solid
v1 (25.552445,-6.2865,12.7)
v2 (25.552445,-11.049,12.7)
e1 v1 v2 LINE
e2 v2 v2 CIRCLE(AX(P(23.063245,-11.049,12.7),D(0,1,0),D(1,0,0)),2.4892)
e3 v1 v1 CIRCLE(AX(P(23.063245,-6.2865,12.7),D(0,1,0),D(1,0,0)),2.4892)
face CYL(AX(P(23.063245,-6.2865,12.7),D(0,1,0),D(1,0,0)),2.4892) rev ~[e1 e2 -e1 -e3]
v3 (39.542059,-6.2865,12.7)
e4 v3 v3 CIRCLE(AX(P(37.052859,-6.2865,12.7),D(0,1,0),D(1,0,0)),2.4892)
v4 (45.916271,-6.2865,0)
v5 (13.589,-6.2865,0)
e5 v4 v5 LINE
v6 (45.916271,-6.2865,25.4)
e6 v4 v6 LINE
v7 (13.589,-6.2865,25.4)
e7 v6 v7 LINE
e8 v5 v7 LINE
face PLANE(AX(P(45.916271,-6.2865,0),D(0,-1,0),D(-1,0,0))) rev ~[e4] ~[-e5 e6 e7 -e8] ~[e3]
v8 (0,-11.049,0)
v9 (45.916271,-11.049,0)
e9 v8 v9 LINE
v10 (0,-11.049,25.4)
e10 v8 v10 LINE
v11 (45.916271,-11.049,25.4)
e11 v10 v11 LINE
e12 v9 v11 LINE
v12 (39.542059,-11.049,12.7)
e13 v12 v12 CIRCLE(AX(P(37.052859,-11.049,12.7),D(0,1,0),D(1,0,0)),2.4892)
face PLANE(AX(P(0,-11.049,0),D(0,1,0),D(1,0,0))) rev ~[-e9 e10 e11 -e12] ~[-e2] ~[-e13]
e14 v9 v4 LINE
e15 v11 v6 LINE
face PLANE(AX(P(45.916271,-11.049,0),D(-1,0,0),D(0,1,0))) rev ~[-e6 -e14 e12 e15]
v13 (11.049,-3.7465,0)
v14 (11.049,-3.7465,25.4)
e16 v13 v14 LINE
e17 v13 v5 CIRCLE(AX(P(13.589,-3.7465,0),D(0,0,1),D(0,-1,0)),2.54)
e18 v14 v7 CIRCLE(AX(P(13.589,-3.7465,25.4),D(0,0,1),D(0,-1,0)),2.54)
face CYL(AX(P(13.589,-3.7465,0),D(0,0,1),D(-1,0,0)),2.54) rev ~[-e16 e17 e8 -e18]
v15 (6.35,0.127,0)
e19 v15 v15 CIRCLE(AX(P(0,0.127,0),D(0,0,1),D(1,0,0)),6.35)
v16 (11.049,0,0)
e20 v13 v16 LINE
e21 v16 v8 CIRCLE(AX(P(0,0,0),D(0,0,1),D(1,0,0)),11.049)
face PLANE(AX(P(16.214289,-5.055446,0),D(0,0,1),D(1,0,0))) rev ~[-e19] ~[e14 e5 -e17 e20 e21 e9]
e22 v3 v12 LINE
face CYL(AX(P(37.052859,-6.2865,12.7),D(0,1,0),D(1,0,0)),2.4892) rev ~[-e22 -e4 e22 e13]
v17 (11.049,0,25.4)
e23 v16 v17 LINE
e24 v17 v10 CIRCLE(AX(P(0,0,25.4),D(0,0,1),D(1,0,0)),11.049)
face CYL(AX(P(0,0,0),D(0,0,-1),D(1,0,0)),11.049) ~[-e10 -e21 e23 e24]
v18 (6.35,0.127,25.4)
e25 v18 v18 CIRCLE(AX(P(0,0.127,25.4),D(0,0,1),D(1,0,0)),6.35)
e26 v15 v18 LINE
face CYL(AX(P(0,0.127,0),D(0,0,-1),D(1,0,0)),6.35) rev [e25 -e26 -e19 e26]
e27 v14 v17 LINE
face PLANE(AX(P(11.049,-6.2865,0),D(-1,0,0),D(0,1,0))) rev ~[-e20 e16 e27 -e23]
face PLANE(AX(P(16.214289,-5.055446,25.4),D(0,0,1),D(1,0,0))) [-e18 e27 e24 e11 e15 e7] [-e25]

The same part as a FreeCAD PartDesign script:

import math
import FreeCAD as App
import Part
import Sketcher
Q = App.Units.Quantity


def edges_at(feature, points):
    """Names of the edges that pass closest to the given points."""
    edges = feature.Shape.Edges
    near = lambda p: min(range(len(edges)), key=lambda i: edges[i].distToShape(Part.Vertex(*p))[0])
    return sorted({f"Edge{near(p) + 1}" for p in points})

doc = App.newDocument("Part")
body = doc.addObject("PartDesign::Body", "Body")

# Sketch on XY plane
sketch1 = doc.addObject("Sketcher::SketchObject", "Sketch")
body.addObject(sketch1)
sketch1.AttachmentSupport = (doc.XY_Plane, [""])
sketch1.MapMode = "FlatFace"
sketch1.addGeometry(Part.LineSegment(App.Vector(11, -6.3, 0), App.Vector(11, 0, 0)), False)
sketch1.addGeometry(Part.ArcOfCircle(Part.Circle(App.Vector(0, 0, 0), App.Vector(0, 0, 1), 11), math.radians(0), math.radians(270)), False)
sketch1.addGeometry(Part.LineSegment(App.Vector(0, -11, 0), App.Vector(45.9, -11, 0)), False)
sketch1.addGeometry(Part.LineSegment(App.Vector(45.9, -11, 0), App.Vector(45.9, -6.3, 0)), False)
sketch1.addGeometry(Part.LineSegment(App.Vector(45.9, -6.3, 0), App.Vector(11, -6.3, 0)), False)
sketch1.addGeometry(Part.Circle(App.Vector(0, 0.1, 0), App.Vector(0, 0, 1), 6.3), False)
sketch1.addConstraint(Sketcher.Constraint("Tangent", 0, 2, 1, 1))
sketch1.addConstraint(Sketcher.Constraint("Tangent", 1, 2, 2, 1))
sketch1.addConstraint(Sketcher.Constraint("Coincident", 2, 2, 3, 1))
sketch1.addConstraint(Sketcher.Constraint("Coincident", 3, 2, 4, 1))
sketch1.addConstraint(Sketcher.Constraint("Coincident", 4, 2, 0, 1))
sketch1.addConstraint(Sketcher.Constraint("Vertical", 0))
sketch1.addConstraint(Sketcher.Constraint("Horizontal", 2))
sketch1.addConstraint(Sketcher.Constraint("Vertical", 3))
sketch1.addConstraint(Sketcher.Constraint("Horizontal", 4))
sketch1.addConstraint(Sketcher.Constraint("Coincident", 1, 3, -1, 1))
sketch1.addConstraint(Sketcher.Constraint("PointOnObject", 5, 3, -2))
sketch1.addConstraint(Sketcher.Constraint("Diameter", 5, Q("0.5 in")))
sketch1.addConstraint(Sketcher.Constraint("Radius", 1, Q("0.435 in")))
sketch1.addConstraint(Sketcher.Constraint("DistanceY", 3, 1, 3, 2, Q("0.1875 in")))
sketch1.addConstraint(Sketcher.Constraint("DistanceY", 1, 2, 5, 3, Q("0.44 in")))
sketch1.addConstraint(Sketcher.Constraint("DistanceX", 2, 1, 2, 2, Q("45.916271 mm")))
pad1 = doc.addObject("PartDesign::Pad", "Pad")
body.addObject(pad1)
pad1.Profile = sketch1
pad1.Length = Q("1 in")
doc.recompute()

fillet = doc.addObject("PartDesign::Fillet", "Fillet")
body.addObject(fillet)
fillet.Base = (pad1, edges_at(pad1, [(11.049, -6.287, 12.7)]))
fillet.Radius = Q("0.1 in")

# Sketch on XZ plane
sketch2 = doc.addObject("Sketcher::SketchObject", "Sketch001")
body.addObject(sketch2)
sketch2.AttachmentSupport = (doc.XZ_Plane, [""])
sketch2.MapMode = "FlatFace"
sketch2.AttachmentOffset = App.Placement(App.Vector(0, 0, 0.2475 * 25.4), App.Rotation())
sketch2.addGeometry(Part.Circle(App.Vector(37.1, 12.7, 0), App.Vector(0, 0, 1), 2.5), False)
sketch2.addGeometry(Part.Circle(App.Vector(23.1, 12.7, 0), App.Vector(0, 0, 1), 2.5), False)
sketch2.addConstraint(Sketcher.Constraint("Equal", 0, 1))
sketch2.addConstraint(Sketcher.Constraint("Horizontal", 0, 3, 1, 3))
sketch2.addConstraint(Sketcher.Constraint("Diameter", 0, Q("0.196 in")))
sketch2.addConstraint(Sketcher.Constraint("DistanceY", -1, 1, 0, 3, Q("0.5 in")))
sketch2.addConstraint(Sketcher.Constraint("DistanceX", -1, 1, 0, 3, Q("37.052859 mm")))
sketch2.addConstraint(Sketcher.Constraint("DistanceX", -1, 1, 1, 3, Q("23.063245 mm")))
pocket1 = doc.addObject("PartDesign::Pocket", "Pocket")
body.addObject(pocket1)
pocket1.Profile = sketch2
pocket1.Type = "ThroughAll"
pocket1.Reversed = True

doc.recompute()
